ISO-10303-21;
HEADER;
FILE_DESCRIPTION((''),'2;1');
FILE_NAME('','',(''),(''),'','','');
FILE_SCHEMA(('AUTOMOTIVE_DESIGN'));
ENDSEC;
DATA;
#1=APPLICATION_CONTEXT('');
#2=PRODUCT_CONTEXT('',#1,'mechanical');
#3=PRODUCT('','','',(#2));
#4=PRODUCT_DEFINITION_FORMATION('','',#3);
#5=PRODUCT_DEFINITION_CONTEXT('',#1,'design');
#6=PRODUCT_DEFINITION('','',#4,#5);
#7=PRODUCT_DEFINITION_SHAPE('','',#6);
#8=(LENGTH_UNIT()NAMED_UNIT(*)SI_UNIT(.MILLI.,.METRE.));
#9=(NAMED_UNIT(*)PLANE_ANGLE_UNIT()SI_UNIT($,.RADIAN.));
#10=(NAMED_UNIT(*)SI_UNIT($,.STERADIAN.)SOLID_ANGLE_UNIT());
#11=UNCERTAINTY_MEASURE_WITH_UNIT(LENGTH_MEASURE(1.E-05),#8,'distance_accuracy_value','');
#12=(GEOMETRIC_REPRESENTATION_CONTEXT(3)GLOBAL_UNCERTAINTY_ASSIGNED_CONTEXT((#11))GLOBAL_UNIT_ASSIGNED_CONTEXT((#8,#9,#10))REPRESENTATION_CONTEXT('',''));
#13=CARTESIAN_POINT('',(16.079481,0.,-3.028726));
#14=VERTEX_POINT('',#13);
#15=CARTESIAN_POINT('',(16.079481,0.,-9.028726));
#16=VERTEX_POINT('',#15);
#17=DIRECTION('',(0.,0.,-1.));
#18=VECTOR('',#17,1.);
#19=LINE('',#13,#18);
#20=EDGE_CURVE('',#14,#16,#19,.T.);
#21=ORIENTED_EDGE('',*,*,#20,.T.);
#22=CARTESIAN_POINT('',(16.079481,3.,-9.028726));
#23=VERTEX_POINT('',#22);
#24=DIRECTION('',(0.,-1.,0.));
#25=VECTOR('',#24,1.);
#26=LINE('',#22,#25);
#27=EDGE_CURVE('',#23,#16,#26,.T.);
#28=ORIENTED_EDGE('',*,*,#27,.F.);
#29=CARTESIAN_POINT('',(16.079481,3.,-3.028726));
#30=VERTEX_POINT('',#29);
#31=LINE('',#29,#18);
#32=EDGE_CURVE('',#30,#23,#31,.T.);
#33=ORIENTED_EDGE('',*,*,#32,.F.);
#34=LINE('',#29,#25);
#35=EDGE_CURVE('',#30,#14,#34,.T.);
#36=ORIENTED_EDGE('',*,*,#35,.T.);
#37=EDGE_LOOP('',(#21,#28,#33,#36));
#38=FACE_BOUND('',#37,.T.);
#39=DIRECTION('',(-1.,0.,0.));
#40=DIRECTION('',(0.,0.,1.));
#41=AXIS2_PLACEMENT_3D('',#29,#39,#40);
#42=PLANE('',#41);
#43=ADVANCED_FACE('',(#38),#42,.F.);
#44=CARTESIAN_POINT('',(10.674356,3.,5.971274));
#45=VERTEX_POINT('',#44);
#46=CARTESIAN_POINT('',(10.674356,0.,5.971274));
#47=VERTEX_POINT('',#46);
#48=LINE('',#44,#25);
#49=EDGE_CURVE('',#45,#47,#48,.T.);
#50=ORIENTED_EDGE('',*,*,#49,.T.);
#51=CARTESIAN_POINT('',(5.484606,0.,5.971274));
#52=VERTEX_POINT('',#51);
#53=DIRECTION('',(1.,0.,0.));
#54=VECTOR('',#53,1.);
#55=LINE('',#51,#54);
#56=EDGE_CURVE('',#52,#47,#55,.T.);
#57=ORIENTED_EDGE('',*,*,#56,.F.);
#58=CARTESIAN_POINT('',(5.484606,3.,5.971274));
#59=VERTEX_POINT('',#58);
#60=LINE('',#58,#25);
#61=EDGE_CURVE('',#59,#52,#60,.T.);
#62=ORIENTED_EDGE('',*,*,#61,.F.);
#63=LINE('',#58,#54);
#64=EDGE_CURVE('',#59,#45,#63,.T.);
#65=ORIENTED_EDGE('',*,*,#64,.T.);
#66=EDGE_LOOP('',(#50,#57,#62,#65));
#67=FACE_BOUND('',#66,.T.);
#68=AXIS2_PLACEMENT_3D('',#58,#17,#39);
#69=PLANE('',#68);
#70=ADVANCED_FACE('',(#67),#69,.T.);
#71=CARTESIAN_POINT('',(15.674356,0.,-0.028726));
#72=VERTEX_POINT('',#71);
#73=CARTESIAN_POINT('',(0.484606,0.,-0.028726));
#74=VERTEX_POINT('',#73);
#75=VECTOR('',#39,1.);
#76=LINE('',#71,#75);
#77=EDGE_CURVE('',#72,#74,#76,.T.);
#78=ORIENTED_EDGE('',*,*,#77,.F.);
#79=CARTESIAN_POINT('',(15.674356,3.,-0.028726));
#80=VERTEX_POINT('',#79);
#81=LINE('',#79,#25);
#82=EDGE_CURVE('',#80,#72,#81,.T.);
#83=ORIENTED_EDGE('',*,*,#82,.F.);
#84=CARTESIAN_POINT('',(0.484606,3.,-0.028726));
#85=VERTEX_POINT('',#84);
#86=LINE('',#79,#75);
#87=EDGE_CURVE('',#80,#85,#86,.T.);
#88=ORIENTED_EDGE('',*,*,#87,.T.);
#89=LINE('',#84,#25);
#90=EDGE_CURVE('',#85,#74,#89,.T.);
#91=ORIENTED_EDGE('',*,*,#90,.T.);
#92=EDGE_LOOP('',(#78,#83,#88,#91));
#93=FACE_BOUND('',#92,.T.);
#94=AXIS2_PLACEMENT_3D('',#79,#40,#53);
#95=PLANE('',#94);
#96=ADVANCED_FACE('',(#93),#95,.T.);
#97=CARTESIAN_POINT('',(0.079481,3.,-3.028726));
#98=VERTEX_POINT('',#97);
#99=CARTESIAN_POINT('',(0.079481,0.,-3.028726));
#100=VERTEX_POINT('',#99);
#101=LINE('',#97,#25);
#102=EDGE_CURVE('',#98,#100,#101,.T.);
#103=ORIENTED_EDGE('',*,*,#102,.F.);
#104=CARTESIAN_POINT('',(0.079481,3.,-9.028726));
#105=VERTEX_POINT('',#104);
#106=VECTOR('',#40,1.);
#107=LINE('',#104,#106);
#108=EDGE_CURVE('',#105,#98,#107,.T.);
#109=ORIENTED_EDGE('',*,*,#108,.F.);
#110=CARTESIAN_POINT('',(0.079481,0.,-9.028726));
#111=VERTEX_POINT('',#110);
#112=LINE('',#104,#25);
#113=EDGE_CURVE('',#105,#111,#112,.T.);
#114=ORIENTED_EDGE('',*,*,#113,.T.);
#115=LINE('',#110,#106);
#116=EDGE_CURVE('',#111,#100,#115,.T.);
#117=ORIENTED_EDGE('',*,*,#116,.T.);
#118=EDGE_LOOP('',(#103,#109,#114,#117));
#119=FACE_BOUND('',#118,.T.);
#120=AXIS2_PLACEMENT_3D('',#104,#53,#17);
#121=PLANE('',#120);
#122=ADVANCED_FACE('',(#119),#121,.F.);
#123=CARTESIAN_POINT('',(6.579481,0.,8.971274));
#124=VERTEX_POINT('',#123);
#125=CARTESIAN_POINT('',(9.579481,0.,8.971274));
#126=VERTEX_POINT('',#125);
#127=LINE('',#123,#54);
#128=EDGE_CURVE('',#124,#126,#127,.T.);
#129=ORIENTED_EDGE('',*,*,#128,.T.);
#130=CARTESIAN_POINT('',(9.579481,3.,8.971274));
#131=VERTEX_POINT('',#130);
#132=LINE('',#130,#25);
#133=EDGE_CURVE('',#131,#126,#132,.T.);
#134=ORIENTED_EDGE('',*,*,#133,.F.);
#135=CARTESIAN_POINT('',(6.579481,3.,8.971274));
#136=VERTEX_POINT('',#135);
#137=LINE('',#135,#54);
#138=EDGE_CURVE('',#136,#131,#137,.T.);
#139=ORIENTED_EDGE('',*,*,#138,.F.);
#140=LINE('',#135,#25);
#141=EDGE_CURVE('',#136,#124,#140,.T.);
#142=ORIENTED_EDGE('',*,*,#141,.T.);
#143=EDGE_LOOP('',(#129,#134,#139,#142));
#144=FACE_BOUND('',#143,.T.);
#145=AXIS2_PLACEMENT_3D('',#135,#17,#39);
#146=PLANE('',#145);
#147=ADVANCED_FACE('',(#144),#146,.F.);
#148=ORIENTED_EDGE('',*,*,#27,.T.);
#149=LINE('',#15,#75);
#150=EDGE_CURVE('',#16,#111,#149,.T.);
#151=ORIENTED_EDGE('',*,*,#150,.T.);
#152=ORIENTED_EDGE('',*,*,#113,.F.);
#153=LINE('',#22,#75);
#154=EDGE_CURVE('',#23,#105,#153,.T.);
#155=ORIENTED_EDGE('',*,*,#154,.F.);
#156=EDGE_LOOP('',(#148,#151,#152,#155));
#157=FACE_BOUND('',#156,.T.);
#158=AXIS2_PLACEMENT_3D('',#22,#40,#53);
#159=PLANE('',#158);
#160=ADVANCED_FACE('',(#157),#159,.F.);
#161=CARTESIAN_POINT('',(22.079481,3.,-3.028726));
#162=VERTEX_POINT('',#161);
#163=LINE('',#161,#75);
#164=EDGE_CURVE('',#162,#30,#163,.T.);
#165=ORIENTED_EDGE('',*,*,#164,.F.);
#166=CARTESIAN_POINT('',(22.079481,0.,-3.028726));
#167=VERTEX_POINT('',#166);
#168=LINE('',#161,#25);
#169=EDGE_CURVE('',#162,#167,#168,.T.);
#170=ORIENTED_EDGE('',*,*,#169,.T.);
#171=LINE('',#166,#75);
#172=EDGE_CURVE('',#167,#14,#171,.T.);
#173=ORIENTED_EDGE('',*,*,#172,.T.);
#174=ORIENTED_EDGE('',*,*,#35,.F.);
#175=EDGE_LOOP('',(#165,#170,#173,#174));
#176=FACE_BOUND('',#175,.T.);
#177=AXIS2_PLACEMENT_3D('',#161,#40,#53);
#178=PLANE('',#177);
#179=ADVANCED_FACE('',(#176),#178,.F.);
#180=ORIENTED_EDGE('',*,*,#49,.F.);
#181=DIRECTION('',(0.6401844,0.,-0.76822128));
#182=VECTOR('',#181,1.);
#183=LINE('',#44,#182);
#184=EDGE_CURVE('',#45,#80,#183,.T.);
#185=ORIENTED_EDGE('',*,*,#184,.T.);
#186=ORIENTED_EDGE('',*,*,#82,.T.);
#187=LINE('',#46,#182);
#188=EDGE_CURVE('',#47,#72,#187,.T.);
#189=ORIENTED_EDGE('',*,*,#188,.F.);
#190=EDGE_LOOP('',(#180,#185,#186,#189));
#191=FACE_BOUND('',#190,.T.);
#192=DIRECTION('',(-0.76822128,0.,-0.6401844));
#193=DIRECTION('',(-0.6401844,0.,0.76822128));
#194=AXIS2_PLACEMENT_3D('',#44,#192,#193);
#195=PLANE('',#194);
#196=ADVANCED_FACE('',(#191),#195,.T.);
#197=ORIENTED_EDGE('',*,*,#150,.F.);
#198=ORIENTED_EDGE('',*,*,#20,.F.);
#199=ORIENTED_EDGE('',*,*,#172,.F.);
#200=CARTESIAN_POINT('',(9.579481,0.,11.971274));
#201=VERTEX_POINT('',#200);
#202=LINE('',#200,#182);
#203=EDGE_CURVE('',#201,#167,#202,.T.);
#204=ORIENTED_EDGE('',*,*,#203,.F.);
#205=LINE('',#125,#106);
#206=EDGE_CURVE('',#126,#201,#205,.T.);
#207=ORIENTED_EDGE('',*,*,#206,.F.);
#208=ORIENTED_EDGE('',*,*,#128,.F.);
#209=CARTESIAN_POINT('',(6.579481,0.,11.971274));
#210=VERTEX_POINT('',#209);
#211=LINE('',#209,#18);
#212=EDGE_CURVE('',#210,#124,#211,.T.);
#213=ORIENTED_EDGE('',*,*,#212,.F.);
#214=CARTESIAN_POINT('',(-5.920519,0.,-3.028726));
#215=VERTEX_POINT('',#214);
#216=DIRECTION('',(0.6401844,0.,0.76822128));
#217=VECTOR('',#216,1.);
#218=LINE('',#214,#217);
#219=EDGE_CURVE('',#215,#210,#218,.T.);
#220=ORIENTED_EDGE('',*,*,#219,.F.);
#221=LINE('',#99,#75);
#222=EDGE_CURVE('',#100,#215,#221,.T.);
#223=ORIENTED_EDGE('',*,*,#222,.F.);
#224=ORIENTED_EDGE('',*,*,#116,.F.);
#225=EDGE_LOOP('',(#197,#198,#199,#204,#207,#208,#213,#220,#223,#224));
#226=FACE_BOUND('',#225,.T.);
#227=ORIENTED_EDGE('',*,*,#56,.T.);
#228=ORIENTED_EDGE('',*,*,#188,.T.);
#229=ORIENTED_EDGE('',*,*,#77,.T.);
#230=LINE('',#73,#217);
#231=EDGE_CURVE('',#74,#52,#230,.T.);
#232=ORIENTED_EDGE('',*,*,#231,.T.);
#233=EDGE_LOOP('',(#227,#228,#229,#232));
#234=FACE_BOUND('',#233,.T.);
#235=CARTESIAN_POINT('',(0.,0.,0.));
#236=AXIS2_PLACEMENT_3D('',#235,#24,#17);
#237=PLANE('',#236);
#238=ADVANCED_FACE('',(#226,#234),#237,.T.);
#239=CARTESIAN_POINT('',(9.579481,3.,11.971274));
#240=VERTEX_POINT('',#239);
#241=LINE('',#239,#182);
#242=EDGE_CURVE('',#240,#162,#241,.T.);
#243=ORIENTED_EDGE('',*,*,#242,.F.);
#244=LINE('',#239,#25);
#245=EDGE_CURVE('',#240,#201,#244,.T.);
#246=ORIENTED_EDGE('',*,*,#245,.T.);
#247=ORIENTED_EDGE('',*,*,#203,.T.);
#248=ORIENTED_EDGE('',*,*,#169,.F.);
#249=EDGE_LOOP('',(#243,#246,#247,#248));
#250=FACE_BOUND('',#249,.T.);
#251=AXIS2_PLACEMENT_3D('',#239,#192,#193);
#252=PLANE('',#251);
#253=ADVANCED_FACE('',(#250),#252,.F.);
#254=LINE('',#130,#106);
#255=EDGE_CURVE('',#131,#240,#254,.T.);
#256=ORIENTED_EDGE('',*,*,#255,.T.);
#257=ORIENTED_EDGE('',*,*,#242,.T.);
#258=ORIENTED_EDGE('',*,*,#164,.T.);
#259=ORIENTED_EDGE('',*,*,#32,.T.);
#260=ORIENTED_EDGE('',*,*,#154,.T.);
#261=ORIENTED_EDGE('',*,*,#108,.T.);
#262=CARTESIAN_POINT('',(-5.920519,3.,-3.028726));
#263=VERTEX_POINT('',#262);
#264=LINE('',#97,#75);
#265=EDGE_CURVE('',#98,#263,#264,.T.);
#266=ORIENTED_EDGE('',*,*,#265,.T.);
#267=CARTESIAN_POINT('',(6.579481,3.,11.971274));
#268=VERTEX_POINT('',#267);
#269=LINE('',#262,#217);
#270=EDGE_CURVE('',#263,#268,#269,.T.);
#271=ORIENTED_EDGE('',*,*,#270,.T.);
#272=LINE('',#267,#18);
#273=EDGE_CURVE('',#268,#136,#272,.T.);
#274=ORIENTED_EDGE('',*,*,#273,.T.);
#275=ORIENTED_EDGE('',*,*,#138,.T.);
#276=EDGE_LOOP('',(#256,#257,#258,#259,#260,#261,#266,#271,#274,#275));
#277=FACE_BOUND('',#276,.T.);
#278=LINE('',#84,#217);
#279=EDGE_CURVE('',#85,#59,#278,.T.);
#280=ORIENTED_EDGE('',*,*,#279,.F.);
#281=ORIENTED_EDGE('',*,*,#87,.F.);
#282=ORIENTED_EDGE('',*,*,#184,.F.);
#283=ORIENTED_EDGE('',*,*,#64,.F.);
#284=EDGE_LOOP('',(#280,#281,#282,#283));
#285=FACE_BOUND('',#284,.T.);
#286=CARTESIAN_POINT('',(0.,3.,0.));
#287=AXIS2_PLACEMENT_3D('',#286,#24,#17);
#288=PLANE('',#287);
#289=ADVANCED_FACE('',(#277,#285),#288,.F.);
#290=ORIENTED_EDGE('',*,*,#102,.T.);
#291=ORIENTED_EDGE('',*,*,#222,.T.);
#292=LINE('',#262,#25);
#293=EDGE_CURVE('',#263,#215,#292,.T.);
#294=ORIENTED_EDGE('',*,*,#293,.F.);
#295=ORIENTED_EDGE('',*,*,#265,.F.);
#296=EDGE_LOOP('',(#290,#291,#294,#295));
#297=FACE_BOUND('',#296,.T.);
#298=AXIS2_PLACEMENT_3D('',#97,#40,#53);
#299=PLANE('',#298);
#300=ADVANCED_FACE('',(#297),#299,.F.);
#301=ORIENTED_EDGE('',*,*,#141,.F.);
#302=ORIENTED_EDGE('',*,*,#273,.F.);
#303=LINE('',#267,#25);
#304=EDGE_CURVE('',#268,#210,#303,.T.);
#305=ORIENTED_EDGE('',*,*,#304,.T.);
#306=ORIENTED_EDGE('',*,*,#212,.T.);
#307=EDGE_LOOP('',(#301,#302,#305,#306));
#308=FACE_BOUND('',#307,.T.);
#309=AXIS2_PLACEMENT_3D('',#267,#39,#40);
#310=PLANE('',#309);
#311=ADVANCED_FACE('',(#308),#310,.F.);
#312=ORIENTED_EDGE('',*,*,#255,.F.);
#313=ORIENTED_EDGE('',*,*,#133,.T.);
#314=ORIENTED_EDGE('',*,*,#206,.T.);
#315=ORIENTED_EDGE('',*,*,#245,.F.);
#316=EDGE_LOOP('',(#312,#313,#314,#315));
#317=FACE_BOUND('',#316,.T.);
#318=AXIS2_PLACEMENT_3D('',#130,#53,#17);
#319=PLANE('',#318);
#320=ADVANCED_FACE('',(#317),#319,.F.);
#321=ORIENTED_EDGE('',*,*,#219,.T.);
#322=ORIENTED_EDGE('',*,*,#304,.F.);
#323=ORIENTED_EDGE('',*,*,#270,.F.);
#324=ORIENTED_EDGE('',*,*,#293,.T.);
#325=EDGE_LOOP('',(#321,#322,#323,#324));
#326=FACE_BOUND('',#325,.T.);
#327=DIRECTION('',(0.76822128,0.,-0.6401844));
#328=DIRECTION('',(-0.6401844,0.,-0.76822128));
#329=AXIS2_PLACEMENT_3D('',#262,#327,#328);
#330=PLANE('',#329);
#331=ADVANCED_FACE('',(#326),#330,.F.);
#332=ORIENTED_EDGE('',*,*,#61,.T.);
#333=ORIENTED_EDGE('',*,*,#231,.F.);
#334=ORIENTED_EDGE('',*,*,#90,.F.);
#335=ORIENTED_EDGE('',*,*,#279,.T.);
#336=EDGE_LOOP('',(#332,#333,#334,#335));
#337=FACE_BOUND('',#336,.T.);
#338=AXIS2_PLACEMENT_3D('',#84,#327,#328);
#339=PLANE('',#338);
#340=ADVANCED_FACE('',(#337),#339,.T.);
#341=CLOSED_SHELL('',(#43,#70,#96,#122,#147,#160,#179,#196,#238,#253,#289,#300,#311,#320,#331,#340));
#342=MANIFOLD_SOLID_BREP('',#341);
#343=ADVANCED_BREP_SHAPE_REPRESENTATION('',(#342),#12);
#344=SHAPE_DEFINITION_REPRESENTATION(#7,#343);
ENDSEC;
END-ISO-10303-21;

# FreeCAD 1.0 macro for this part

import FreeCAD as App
import Part
import Sketcher
Q = App.Units.Quantity


def add_polygon(sketch, points):
    """Adds a closed chain of lines whose ends are joined by coincident constraints."""
    first, n = sketch.GeometryCount, len(points)
    for a, b in zip(points, points[1:] + points[:1]):
        sketch.addGeometry(Part.LineSegment(App.Vector(*a, 0), App.Vector(*b, 0)), False)
    for i in range(n):
        sketch.addConstraint(Sketcher.Constraint("Coincident", first + i, 2, first + (i + 1) % n, 1))

doc = App.newDocument("Part")
params = doc.addObject("Spreadsheet::Sheet", "Params")
for row, (alias, value) in enumerate([
    ("sketch1_width", "6 mm"),
    ("sketch1_width2", "16 mm"),
    ("sketch1_width3", "3 mm"),
    ("pad1_length", "3 mm"),
], start=1):
    params.set(f"A{row}", alias)
    params.set(f"B{row}", "=" + value)
    params.setAlias(f"B{row}", alias)

body = doc.addObject("PartDesign::Body", "Body")

# Sketch on XZ plane
sketch1 = doc.addObject("Sketcher::SketchObject", "Sketch")
body.addObject(sketch1)
sketch1.AttachmentSupport = (doc.XZ_Plane, [""])
sketch1.MapMode = "FlatFace"
add_polygon(sketch1, [(22.1, -3), (16.1, -3), (16.1, -9), (0.1, -9), (0.1, -3), (-5.9, -3), (6.6, 12), (6.6, 9), (9.6, 9), (9.6, 12)])  # lines 0-9
add_polygon(sketch1, [(0.5, 0), (15.7, 0), (10.7, 6), (5.5, 6)])  # lines 10-13
sketch1.addConstraint(Sketcher.Constraint("Horizontal", 0))
sketch1.addConstraint(Sketcher.Constraint("Vertical", 1))
sketch1.addConstraint(Sketcher.Constraint("Horizontal", 2))
sketch1.addConstraint(Sketcher.Constraint("Vertical", 3))
sketch1.addConstraint(Sketcher.Constraint("Horizontal", 4))
sketch1.addConstraint(Sketcher.Constraint("Vertical", 6))
sketch1.addConstraint(Sketcher.Constraint("Horizontal", 7))
sketch1.addConstraint(Sketcher.Constraint("Vertical", 8))
sketch1.addConstraint(Sketcher.Constraint("Horizontal", 10))
sketch1.addConstraint(Sketcher.Constraint("Horizontal", 12))
sketch1.addConstraint(Sketcher.Constraint("Parallel", 9, 11))
sketch1.addConstraint(Sketcher.Constraint("Parallel", 5, 13))
sketch1.addConstraint(Sketcher.Constraint("Horizontal", 0, 2, 3, 2))
sketch1.addConstraint(Sketcher.Constraint("Horizontal", 5, 2, 8, 2))
sketch1.addConstraint(Sketcher.Constraint("Equal", 0, 4))
sketch1.addConstraint(Sketcher.Constraint("Equal", 4, 1))
sketch1.addConstraint(Sketcher.Constraint("Equal", 7, 6))
sketch1.addConstraint(Sketcher.Constraint("Equal", 5, 9))
sketch1.addConstraint(Sketcher.Constraint("DistanceX", 0, 2, 0, 1, Q("6 mm")))
sketch1.addConstraint(Sketcher.Constraint("DistanceX", 2, 2, 2, 1, Q("16 mm")))
sketch1.addConstraint(Sketcher.Constraint("DistanceX", 7, 1, 7, 2, Q("3 mm")))
sketch1.addConstraint(Sketcher.Constraint("DistanceY", 3, 2, 5, 2, Q("15 mm")))
sketch1.addConstraint(Sketcher.Constraint("DistanceY", 0, 2, 10, 2, Q("3 mm")))
sketch1.addConstraint(Sketcher.Constraint("DistanceY", 11, 2, 7, 2, Q("3 mm")))
sketch1.addConstraint(Sketcher.Constraint("DistanceX", 10, 1, 10, 2, Q("15.18975 mm")))
sketch1.addConstraint(Sketcher.Constraint("DistanceX", -1, 1, 0, 2, Q("16.079481 mm")))
sketch1.addConstraint(Sketcher.Constraint("DistanceY", 0, 2, -1, 1, Q("3.028726 mm")))
sketch1.addConstraint(Sketcher.Constraint("DistanceX", -1, 1, 10, 2, Q("15.674356 mm")))
sketch1.setExpression("Constraints[32]", "Params.sketch1_width")
sketch1.setExpression("Constraints[33]", "Params.sketch1_width2")
sketch1.setExpression("Constraints[34]", "Params.sketch1_width3")
pad1 = doc.addObject("PartDesign::Pad", "Pad")
body.addObject(pad1)
pad1.Profile = sketch1
pad1.setExpression("Length", "Params.pad1_length")
pad1.Reversed = True

doc.recompute()
